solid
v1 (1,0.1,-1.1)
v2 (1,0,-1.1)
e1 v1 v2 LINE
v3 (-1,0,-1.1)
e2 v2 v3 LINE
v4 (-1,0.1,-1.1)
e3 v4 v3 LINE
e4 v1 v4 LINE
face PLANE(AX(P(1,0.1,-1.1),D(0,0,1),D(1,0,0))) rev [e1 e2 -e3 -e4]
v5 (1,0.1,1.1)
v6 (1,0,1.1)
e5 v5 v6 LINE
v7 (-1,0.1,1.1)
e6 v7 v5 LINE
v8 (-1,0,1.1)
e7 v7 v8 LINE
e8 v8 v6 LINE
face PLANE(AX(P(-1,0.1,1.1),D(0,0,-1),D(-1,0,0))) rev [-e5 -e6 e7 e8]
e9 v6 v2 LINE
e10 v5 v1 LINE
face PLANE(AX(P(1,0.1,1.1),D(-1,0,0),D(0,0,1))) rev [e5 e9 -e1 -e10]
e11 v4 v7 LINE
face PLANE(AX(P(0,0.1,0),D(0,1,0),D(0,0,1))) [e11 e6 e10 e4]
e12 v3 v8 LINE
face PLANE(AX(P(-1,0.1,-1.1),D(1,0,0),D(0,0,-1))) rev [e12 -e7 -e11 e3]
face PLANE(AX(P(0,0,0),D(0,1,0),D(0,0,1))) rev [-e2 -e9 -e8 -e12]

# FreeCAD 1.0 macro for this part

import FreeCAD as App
import Part
import Sketcher

V = App.Vector
Q = App.Units.Quantity


def add_polygon(sketch, points):
    """Adds a closed chain of lines whose ends are joined by coincident constraints."""
    first, n = sketch.GeometryCount, len(points)
    for a, b in zip(points, points[1:] + points[:1]):
        sketch.addGeometry(Part.LineSegment(App.Vector(*a, 0), App.Vector(*b, 0)), False)
    for i in range(n):
        sketch.addConstraint(Sketcher.Constraint("Coincident", first + i, 2, first + (i + 1) % n, 1))

doc = App.newDocument("Part")
body = doc.addObject("PartDesign::Body", "Body")

# Sketch on XZ plane
sketch1 = body.newObject("Sketcher::SketchObject", "Sketch")
sketch1.AttachmentSupport = (doc.getObject("XZ_Plane"), [""])
sketch1.MapMode = "FlatFace"
add_polygon(sketch1, [(1, 1.1), (1, -1.1), (-1, -1.1), (-1, 1.1)])  # lines 0-3
sketch1.addConstraint([
    Sketcher.Constraint("Vertical", 0),
    Sketcher.Constraint("Horizontal", 1),
    Sketcher.Constraint("Vertical", 2),
    Sketcher.Constraint("Horizontal", 3),
    Sketcher.Constraint("Symmetric", 0, 2, 2, 2, -1, 1),
    Sketcher.Constraint("DistanceX", 1, 2, 1, 1, Q("2 mm")),
    Sketcher.Constraint("DistanceY", 0, 2, 0, 1, Q("2.2 mm")),
])
pad1 = body.newObject("PartDesign::Pad", "Pad")
pad1.Profile = sketch1
pad1.Length = 0.1
pad1.Reversed = True

doc.recompute()
